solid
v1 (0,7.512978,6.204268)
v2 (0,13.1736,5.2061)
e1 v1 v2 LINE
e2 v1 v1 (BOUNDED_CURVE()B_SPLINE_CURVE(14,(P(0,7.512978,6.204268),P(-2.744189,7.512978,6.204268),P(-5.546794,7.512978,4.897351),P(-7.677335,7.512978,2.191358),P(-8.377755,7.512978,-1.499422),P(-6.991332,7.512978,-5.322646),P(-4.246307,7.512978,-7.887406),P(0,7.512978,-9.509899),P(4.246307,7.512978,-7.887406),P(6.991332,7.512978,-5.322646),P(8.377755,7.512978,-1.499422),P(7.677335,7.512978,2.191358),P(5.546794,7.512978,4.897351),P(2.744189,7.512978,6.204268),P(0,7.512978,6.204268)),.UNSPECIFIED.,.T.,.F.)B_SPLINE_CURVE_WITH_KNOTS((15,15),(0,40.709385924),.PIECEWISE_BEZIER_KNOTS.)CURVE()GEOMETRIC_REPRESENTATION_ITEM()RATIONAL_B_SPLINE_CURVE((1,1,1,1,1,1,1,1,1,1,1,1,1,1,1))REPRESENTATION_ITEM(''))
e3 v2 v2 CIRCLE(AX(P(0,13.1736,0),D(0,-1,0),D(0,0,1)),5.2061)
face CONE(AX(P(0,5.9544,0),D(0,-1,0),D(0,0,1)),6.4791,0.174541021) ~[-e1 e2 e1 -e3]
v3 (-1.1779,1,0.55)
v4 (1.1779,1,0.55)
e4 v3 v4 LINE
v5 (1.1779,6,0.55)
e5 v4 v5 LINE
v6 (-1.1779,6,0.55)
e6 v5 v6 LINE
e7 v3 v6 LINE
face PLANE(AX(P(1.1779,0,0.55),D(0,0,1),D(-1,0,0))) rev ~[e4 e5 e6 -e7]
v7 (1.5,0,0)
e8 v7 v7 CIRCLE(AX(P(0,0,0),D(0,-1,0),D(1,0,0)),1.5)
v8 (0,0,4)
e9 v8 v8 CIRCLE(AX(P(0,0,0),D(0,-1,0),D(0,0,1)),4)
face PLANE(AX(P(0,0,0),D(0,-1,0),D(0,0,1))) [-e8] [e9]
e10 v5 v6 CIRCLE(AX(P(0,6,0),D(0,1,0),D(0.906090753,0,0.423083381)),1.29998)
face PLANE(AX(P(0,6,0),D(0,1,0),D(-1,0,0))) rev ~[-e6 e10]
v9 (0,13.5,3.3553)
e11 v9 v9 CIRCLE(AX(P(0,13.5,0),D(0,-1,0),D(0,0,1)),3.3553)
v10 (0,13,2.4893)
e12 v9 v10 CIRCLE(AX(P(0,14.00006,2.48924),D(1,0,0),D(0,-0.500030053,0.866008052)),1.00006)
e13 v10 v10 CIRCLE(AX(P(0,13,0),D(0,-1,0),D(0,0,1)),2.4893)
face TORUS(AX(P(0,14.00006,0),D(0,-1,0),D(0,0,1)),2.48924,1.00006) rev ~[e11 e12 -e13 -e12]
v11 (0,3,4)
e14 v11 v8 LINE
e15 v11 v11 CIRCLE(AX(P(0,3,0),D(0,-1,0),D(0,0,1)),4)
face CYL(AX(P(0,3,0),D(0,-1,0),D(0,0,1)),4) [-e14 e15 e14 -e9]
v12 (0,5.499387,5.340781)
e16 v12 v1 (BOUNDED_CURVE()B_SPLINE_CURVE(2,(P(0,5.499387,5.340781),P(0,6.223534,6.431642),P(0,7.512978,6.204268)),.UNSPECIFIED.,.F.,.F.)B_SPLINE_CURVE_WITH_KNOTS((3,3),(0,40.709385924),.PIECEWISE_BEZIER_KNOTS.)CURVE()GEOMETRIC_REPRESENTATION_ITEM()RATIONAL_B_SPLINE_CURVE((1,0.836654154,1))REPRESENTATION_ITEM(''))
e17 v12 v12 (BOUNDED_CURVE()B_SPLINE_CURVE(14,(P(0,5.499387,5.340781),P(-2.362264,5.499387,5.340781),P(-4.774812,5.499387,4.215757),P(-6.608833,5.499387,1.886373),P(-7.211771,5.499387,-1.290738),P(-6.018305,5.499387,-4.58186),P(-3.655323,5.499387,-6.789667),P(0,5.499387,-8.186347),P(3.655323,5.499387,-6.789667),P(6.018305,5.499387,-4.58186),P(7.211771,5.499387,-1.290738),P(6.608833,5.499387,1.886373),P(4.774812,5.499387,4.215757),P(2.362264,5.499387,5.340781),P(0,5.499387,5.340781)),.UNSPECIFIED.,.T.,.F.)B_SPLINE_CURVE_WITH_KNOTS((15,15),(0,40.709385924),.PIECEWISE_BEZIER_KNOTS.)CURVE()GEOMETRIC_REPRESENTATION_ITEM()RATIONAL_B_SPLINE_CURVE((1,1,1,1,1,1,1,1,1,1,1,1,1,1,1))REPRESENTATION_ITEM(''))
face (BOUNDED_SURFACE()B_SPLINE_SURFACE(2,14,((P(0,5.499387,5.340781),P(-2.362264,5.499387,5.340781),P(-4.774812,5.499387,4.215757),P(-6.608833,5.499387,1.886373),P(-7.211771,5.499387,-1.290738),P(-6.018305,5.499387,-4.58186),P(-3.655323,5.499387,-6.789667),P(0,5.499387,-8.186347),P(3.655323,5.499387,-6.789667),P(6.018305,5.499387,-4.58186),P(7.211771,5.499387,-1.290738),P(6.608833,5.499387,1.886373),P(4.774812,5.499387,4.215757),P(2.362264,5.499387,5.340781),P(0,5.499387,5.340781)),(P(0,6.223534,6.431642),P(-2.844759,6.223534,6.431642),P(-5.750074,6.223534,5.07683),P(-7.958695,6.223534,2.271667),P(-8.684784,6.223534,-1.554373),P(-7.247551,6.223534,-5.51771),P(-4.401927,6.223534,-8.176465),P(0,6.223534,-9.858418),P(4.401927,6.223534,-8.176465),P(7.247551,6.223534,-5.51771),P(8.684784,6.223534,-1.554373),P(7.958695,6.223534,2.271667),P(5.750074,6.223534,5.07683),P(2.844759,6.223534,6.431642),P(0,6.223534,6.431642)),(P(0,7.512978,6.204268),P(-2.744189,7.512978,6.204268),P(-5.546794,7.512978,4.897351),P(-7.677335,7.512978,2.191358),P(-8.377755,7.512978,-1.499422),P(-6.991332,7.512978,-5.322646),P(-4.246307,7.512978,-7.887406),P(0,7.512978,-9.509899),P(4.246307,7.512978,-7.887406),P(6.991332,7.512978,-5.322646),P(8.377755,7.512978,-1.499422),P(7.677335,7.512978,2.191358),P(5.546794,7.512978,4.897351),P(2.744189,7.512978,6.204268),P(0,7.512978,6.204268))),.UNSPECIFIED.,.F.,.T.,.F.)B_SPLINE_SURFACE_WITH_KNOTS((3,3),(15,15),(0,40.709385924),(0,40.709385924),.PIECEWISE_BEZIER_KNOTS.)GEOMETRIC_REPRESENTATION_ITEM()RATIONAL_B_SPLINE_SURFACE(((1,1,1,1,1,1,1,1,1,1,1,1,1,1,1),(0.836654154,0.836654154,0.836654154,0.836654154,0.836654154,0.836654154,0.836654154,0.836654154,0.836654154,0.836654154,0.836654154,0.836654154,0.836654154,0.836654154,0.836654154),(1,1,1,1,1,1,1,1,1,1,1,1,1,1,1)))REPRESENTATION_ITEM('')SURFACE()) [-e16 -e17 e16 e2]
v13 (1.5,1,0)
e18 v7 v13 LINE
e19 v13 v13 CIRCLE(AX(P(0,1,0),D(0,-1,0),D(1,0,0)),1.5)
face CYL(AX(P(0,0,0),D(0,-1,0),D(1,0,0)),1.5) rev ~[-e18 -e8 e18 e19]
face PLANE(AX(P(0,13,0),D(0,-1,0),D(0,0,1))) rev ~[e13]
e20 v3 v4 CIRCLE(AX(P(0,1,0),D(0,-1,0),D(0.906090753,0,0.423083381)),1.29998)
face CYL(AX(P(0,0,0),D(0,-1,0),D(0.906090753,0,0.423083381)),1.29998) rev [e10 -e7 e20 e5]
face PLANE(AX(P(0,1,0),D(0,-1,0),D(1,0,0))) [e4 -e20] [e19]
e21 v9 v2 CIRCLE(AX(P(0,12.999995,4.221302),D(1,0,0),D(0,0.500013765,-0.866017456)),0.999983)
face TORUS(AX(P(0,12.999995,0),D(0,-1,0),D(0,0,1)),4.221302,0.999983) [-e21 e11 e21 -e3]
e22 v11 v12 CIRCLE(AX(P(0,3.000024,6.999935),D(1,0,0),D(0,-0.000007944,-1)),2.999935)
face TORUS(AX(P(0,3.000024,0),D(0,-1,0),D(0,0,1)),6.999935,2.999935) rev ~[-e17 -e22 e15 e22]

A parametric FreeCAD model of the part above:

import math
import FreeCAD as App
import Part
import Sketcher
from FreeCAD import Vector
Q = App.Units.Quantity


def edges_at(feature, points):
    """Names of the edges that pass closest to the given points."""
    edges = feature.Shape.Edges
    near = lambda p: min(range(len(edges)), key=lambda i: edges[i].distToShape(Part.Vertex(*p))[0])
    return sorted({f"Edge{near(p) + 1}" for p in points})

doc = App.newDocument("Part")
params = doc.addObject("Spreadsheet::Sheet", "Params")
for row, (alias, value) in enumerate([
    ("sketch1_radius", "1 mm"),
    ("sketch1_radius2", "3 mm"),
    ("sketch1_width", "13 mm"),
    ("sketch1_width2", "3 mm"),
    ("sketch1_height", "4 mm"),
    ("revolution_angle", "360 deg"),
    ("sketch2_radius", "1.3 mm"),
    ("pocket1_length", "6 mm"),
    ("sketch3_diameter", "3 mm"),
    ("pocket2_length", "1 mm"),
    ("fillet_radius", "2 mm"),
], start=1):
    params.set(f"A{row}", alias)
    params.set(f"B{row}", "=" + value)
    params.setAlias(f"B{row}", alias)

body = doc.addObject("PartDesign::Body", "Body")

# Sketch on YZ plane
sketch1 = body.newObject("Sketcher::SketchObject", "Sketch")
sketch1.AttachmentSupport = (doc.getObject("YZ_Plane"), [""])
sketch1.MapMode = "FlatFace"
sketch1.addGeometry([
    Part.LineSegment(Vector(0, 0, 0), Vector(13, 0, 0)),  # 0
    Part.LineSegment(Vector(13, 0, 0), Vector(13, 2.5, 0)),  # 1
    Part.ArcOfCircle(Part.Circle(Vector(14, 2.5, 0), Vector(0, 0, 1), 1), math.radians(120), math.radians(180)),  # 2
    Part.ArcOfCircle(Part.Circle(Vector(13, 4.2, 0), Vector(0, 0, 1), 1), math.radians(-60), math.radians(80)),  # 3
    Part.LineSegment(Vector(13.2, 5.2, 0), Vector(6, 6.5, 0)),  # 4
    Part.ArcOfCircle(Part.Circle(Vector(3, 7, 0), Vector(0, 0, 1), 3), math.radians(-90), math.radians(-10)),  # 5
    Part.LineSegment(Vector(3, 4, 0), Vector(0, 4, 0)),  # 6
    Part.LineSegment(Vector(0, 4, 0), Vector(0, 0, 0)),  # 7
], False)
sketch1.addConstraint([
    Sketcher.Constraint("Coincident", 0, 2, 1, 1),
    Sketcher.Constraint("Tangent", 1, 2, 2, 2),
    Sketcher.Constraint("Tangent", 2, 1, 3, 1),
    Sketcher.Constraint("Tangent", 3, 2, 4, 1),
    Sketcher.Constraint("Coincident", 4, 2, 5, 2),
    Sketcher.Constraint("Tangent", 5, 1, 6, 1),
    Sketcher.Constraint("Coincident", 6, 2, 7, 1),
    Sketcher.Constraint("Coincident", 7, 2, 0, 1),
    Sketcher.Constraint("Horizontal", 0),
    Sketcher.Constraint("Vertical", 1),
    Sketcher.Constraint("Horizontal", 6),
    Sketcher.Constraint("Vertical", 7),
    Sketcher.Constraint("Coincident", 7, 2, -1, 1),
    Sketcher.Constraint("Equal", 2, 3),
    Sketcher.Constraint("Vertical", 3, 3, 0, 2),
    Sketcher.Constraint("Radius", 2, Q("1 mm")),
    Sketcher.Constraint("Radius", 5, Q("3 mm")),
    Sketcher.Constraint("DistanceX", 0, 1, 0, 2, Q("13 mm")),
    Sketcher.Constraint("DistanceX", 6, 2, 6, 1, Q("3 mm")),
    Sketcher.Constraint("DistanceY", 7, 2, 7, 1, Q("4 mm")),
    Sketcher.Constraint("Angle", 4, Q("169.9995 deg")),
    Sketcher.Constraint("DistanceY", 1, 1, 1, 2, Q("2.4893 mm")),
])
sketch1.setExpression("Constraints[15]", "Params.sketch1_radius")
sketch1.setExpression("Constraints[16]", "Params.sketch1_radius2")
sketch1.setExpression("Constraints[17]", "Params.sketch1_width")
sketch1.setExpression("Constraints[18]", "Params.sketch1_width2")
sketch1.setExpression("Constraints[19]", "Params.sketch1_height")
revolution = body.newObject("PartDesign::Revolution", "Revolution")
revolution.Profile = sketch1
revolution.ReferenceAxis = (sketch1, ["H_Axis"])
revolution.setExpression("Angle", "Params.revolution_angle")

# Sketch on XZ plane
sketch2 = body.newObject("Sketcher::SketchObject", "Sketch001")
sketch2.AttachmentSupport = (doc.getObject("XZ_Plane"), [""])
sketch2.MapMode = "FlatFace"
sketch2.addGeometry([
    Part.LineSegment(Vector(-1.2, 0.6, 0), Vector(1.2, 0.6, 0)),
    Part.ArcOfCircle(Part.Circle(Vector(0, 0, 0), Vector(0, 0, 1), 1.3), math.radians(155), math.radians(385)),
], False)
sketch2.addConstraint([
    Sketcher.Constraint("Coincident", 0, 1, 1, 1),
    Sketcher.Constraint("Coincident", 1, 2, 0, 2),
    Sketcher.Constraint("Horizontal", 0),
    Sketcher.Constraint("Coincident", 1, 3, -1, 1),
    Sketcher.Constraint("Radius", 1, Q("1.3 mm")),
    Sketcher.Constraint("DistanceY", -1, 1, 0, 1, Q("0.55 mm")),
])
sketch2.setExpression("Constraints[4]", "Params.sketch2_radius")
pocket1 = body.newObject("PartDesign::Pocket", "Pocket")
pocket1.Profile = sketch2
pocket1.setExpression("Length", "Params.pocket1_length")

# Sketch on XZ plane
sketch3 = body.newObject("Sketcher::SketchObject", "Sketch002")
sketch3.AttachmentSupport = (doc.getObject("XZ_Plane"), [""])
sketch3.MapMode = "FlatFace"
sketch3.addGeometry(Part.Circle(Vector(0, 0, 0), Vector(0, 0, 1), 1.5), False)
sketch3.addConstraint([
    Sketcher.Constraint("Coincident", 0, 3, -1, 1),
    Sketcher.Constraint("Diameter", 0, Q("3 mm")),
])
sketch3.setExpression("Constraints[1]", "Params.sketch3_diameter")
pocket2 = body.newObject("PartDesign::Pocket", "Pocket001")
pocket2.Profile = sketch3
pocket2.setExpression("Length", "Params.pocket2_length")
doc.recompute()

fillet = body.newObject("PartDesign::Fillet", "Fillet")
fillet.Base = (pocket2, edges_at(pocket2, [(0, 5.954, -6.479)]))
fillet.setExpression("Radius", "Params.fillet_radius")

doc.recompute()
